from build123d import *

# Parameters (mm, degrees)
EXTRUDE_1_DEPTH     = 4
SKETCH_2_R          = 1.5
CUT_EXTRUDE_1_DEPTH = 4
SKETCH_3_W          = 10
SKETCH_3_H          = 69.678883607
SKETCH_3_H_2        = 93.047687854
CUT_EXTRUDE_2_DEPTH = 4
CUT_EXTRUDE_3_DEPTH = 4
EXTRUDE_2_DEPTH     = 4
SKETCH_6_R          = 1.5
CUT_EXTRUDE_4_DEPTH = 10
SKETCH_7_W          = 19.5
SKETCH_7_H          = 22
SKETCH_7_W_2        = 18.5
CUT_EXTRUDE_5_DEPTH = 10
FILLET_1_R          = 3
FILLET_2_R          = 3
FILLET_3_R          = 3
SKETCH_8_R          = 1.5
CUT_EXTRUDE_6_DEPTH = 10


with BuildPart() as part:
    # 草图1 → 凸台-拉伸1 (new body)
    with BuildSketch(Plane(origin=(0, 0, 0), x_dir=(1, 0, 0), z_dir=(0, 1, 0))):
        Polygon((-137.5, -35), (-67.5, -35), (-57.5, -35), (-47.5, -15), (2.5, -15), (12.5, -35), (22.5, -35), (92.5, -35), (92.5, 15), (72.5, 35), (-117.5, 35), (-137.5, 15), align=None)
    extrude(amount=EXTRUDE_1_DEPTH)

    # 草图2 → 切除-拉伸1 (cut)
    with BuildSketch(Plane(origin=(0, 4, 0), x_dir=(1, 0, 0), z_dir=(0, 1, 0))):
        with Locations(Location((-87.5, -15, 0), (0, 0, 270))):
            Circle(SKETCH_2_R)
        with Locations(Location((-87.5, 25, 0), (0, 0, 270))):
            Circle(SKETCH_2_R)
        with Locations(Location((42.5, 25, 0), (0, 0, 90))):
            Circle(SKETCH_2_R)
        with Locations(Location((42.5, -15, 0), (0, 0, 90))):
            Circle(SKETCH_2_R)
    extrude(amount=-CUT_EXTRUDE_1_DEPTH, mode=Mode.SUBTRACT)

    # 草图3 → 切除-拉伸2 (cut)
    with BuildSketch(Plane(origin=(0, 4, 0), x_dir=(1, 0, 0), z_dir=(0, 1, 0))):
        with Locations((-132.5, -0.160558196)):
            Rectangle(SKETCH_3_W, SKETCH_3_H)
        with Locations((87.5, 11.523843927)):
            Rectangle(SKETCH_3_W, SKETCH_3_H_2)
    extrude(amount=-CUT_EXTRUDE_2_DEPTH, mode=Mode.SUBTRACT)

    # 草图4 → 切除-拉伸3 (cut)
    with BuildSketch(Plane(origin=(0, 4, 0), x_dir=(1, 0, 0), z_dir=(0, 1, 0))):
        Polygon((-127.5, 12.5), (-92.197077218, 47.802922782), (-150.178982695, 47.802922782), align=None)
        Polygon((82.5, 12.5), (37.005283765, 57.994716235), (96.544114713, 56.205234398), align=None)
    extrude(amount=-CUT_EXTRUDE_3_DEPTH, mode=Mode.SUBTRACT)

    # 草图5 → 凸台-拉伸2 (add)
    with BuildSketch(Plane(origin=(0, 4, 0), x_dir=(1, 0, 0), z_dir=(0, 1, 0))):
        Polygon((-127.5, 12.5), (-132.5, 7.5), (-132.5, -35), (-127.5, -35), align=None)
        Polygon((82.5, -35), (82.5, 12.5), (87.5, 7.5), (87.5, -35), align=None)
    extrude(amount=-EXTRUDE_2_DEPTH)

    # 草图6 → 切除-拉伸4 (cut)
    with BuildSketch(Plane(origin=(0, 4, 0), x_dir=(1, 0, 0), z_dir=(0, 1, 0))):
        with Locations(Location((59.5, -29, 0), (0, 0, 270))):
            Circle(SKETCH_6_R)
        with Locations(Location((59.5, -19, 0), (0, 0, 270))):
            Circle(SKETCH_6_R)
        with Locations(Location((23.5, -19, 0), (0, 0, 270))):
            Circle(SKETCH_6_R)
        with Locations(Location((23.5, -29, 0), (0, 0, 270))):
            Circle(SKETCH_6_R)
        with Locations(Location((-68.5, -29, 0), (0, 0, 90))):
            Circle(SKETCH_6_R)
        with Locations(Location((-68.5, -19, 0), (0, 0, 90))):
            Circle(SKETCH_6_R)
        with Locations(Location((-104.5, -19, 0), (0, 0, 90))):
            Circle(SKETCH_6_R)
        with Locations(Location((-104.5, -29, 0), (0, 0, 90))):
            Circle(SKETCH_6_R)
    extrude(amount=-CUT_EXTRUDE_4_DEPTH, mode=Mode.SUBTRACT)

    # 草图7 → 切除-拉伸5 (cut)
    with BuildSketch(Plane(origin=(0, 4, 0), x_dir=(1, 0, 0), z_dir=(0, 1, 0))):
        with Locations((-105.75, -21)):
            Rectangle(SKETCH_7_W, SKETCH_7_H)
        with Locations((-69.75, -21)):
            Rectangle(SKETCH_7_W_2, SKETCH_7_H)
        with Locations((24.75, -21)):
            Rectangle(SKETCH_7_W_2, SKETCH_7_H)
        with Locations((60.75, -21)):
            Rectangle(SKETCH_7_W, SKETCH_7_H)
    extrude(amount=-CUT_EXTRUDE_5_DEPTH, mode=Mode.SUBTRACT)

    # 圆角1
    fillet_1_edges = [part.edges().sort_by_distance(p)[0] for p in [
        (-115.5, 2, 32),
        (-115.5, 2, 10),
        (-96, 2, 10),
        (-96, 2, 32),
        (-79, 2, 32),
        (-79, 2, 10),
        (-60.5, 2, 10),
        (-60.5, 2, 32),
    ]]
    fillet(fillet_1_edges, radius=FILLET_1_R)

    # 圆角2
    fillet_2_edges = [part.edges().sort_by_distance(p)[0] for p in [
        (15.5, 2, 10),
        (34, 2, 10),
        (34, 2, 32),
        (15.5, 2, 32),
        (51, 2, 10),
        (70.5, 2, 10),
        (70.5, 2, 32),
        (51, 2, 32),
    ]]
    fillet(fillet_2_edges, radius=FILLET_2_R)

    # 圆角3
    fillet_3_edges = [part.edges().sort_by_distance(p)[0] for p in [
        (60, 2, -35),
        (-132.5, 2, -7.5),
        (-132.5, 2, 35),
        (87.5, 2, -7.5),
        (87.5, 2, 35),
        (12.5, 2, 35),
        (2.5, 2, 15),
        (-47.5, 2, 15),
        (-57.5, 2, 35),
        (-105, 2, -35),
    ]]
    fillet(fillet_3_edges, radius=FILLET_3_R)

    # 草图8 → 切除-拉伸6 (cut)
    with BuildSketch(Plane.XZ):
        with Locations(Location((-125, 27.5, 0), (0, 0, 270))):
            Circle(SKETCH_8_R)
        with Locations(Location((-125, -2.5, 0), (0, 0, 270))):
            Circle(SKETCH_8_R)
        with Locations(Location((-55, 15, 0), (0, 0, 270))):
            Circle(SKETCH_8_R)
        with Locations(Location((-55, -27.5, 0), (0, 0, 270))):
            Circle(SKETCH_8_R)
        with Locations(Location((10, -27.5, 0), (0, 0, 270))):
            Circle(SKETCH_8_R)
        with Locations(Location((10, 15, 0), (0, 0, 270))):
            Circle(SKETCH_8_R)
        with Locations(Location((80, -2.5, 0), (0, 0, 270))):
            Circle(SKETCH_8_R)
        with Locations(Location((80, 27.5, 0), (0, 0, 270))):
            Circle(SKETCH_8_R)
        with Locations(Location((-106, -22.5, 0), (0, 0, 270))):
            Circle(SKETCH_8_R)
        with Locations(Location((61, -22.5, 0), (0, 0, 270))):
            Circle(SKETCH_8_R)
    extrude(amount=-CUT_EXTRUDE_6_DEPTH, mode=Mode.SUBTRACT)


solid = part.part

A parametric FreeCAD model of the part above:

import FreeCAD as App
import Part
import Sketcher
Q = App.Units.Quantity


def edges_at(feature, points):
    """Names of the edges that pass closest to the given points."""
    edges = feature.Shape.Edges
    near = lambda p: min(range(len(edges)), key=lambda i: edges[i].distToShape(Part.Vertex(*p))[0])
    return sorted({f"Edge{near(p) + 1}" for p in points})

doc = App.newDocument("Part")
body = doc.addObject("PartDesign::Body", "Body")

sketch1 = doc.addObject("Sketcher::SketchObject", "Sketch")
body.addObject(sketch1)
sketch1.AttachmentSupport = (doc.XZ_Plane, [""])
sketch1.MapMode = "FlatFace"
sketch1.addGeometry(Part.LineSegment(App.Vector(-138, 35, 0), App.Vector(-58, 35, 0)), False)
sketch1.addGeometry(Part.LineSegment(App.Vector(-58, 35, 0), App.Vector(-48, 15, 0)), False)
sketch1.addGeometry(Part.LineSegment(App.Vector(-48, 15, 0), App.Vector(2, 15, 0)), False)
sketch1.addGeometry(Part.LineSegment(App.Vector(2, 15, 0), App.Vector(12, 35, 0)), False)
sketch1.addGeometry(Part.LineSegment(App.Vector(12, 35, 0), App.Vector(92, 35, 0)), False)
sketch1.addGeometry(Part.LineSegment(App.Vector(92, 35, 0), App.Vector(92, -15, 0)), False)
sketch1.addGeometry(Part.LineSegment(App.Vector(92, -15, 0), App.Vector(72, -35, 0)), False)
sketch1.addGeometry(Part.LineSegment(App.Vector(72, -35, 0), App.Vector(-118, -35, 0)), False)
sketch1.addGeometry(Part.LineSegment(App.Vector(-118, -35, 0), App.Vector(-138, -15, 0)), False)
sketch1.addGeometry(Part.LineSegment(App.Vector(-138, -15, 0), App.Vector(-138, 35, 0)), False)
sketch1.addConstraint(Sketcher.Constraint("Coincident", 0, 2, 1, 1))
sketch1.addConstraint(Sketcher.Constraint("Coincident", 1, 2, 2, 1))
sketch1.addConstraint(Sketcher.Constraint("Coincident", 2, 2, 3, 1))
sketch1.addConstraint(Sketcher.Constraint("Coincident", 3, 2, 4, 1))
sketch1.addConstraint(Sketcher.Constraint("Coincident", 4, 2, 5, 1))
sketch1.addConstraint(Sketcher.Constraint("Coincident", 5, 2, 6, 1))
sketch1.addConstraint(Sketcher.Constraint("Coincident", 6, 2, 7, 1))
sketch1.addConstraint(Sketcher.Constraint("Coincident", 7, 2, 8, 1))
sketch1.addConstraint(Sketcher.Constraint("Coincident", 8, 2, 9, 1))
sketch1.addConstraint(Sketcher.Constraint("Coincident", 9, 2, 0, 1))
sketch1.addConstraint(Sketcher.Constraint("Horizontal", 0))
sketch1.addConstraint(Sketcher.Constraint("Horizontal", 2))
sketch1.addConstraint(Sketcher.Constraint("Horizontal", 4))
sketch1.addConstraint(Sketcher.Constraint("Vertical", 5))
sketch1.addConstraint(Sketcher.Constraint("Horizontal", 7))
sketch1.addConstraint(Sketcher.Constraint("Vertical", 9))
sketch1.addConstraint(Sketcher.Constraint("Perpendicular", 6, 8))
sketch1.addConstraint(Sketcher.Constraint("Horizontal", 0, 2, 3, 2))
sketch1.addConstraint(Sketcher.Constraint("Horizontal", 5, 2, 8, 2))
sketch1.addConstraint(Sketcher.Constraint("Equal", 0, 4))
sketch1.addConstraint(Sketcher.Constraint("Equal", 2, 5))
sketch1.addConstraint(Sketcher.Constraint("Equal", 1, 3))
sketch1.addConstraint(Sketcher.Constraint("Equal", 6, 8))
sketch1.addConstraint(Sketcher.Constraint("DistanceX", 0, 1, 0, 2, Q("80 mm")))
sketch1.addConstraint(Sketcher.Constraint("DistanceX", 2, 1, 2, 2, Q("50 mm")))
sketch1.addConstraint(Sketcher.Constraint("DistanceX", 7, 2, 7, 1, Q("190 mm")))
sketch1.addConstraint(Sketcher.Constraint("DistanceY", -1, 1, 0, 2, Q("35 mm")))
sketch1.addConstraint(Sketcher.Constraint("DistanceY", -1, 1, 1, 2, Q("15 mm")))
sketch1.addConstraint(Sketcher.Constraint("DistanceY", 6, 2, -1, 1, Q("35 mm")))
sketch1.addConstraint(Sketcher.Constraint("DistanceX", 0, 2, -1, 1, Q("57.5 mm")))
pad1 = doc.addObject("PartDesign::Pad", "Pad")
body.addObject(pad1)
pad1.Profile = sketch1
pad1.Length = 4
pad1.Reversed = True

sketch2 = doc.addObject("Sketcher::SketchObject", "Sketch001")
body.addObject(sketch2)
sketch2.AttachmentSupport = (doc.XZ_Plane, [""])
sketch2.MapMode = "FlatFace"
sketch2.AttachmentOffset = App.Placement(App.Vector(0, 0, -4), App.Rotation())
sketch2.addGeometry(Part.Circle(App.Vector(-87.5, 15, 0), App.Vector(0, 0, 1), 1.5), False)
sketch2.addGeometry(Part.Circle(App.Vector(-87.5, -25, 0), App.Vector(0, 0, 1), 1.5), False)
sketch2.addGeometry(Part.Circle(App.Vector(42.5, -25, 0), App.Vector(0, 0, 1), 1.5), False)
sketch2.addGeometry(Part.Circle(App.Vector(42.5, 15, 0), App.Vector(0, 0, 1), 1.5), False)
sketch2.addConstraint(Sketcher.Constraint("Equal", 0, 1))
sketch2.addConstraint(Sketcher.Constraint("Equal", 1, 2))
sketch2.addConstraint(Sketcher.Constraint("Equal", 2, 3))
sketch2.addConstraint(Sketcher.Constraint("Horizontal", 1, 3, 2, 3))
sketch2.addConstraint(Sketcher.Constraint("Horizontal", 0, 3, 3, 3))
sketch2.addConstraint(Sketcher.Constraint("Vertical", 0, 3, 1, 3))
sketch2.addConstraint(Sketcher.Constraint("Vertical", 2, 3, 3, 3))
sketch2.addConstraint(Sketcher.Constraint("Diameter", 0, Q("3 mm")))
sketch2.addConstraint(Sketcher.Constraint("DistanceY", -1, 1, 0, 3, Q("15 mm")))
sketch2.addConstraint(Sketcher.Constraint("DistanceY", 1, 3, -1, 1, Q("25 mm")))
sketch2.addConstraint(Sketcher.Constraint("DistanceX", 1, 3, 2, 3, Q("130 mm")))
sketch2.addConstraint(Sketcher.Constraint("DistanceX", 0, 3, -1, 1, Q("87.5 mm")))
pocket1 = doc.addObject("PartDesign::Pocket", "Pocket")
body.addObject(pocket1)
pocket1.Profile = sketch2
pocket1.Length = 4
pocket1.Reversed = True

sketch3 = doc.addObject("Sketcher::SketchObject", "Sketch002")
body.addObject(sketch3)
sketch3.AttachmentSupport = (doc.XZ_Plane, [""])
sketch3.MapMode = "FlatFace"
sketch3.AttachmentOffset = App.Placement(App.Vector(0, 0, -4), App.Rotation())
sketch3.addGeometry(Part.LineSegment(App.Vector(-138, -35, 0), App.Vector(-138, 35, 0)), False)
sketch3.addGeometry(Part.LineSegment(App.Vector(-138, 35, 0), App.Vector(-128, 35, 0)), False)
sketch3.addGeometry(Part.LineSegment(App.Vector(-128, 35, 0), App.Vector(-128, -35, 0)), False)
sketch3.addGeometry(Part.LineSegment(App.Vector(-128, -35, 0), App.Vector(-138, -35, 0)), False)
sketch3.addGeometry(Part.LineSegment(App.Vector(82, -58, 0), App.Vector(82, 35, 0)), False)
sketch3.addGeometry(Part.LineSegment(App.Vector(82, 35, 0), App.Vector(92, 35, 0)), False)
sketch3.addGeometry(Part.LineSegment(App.Vector(92, 35, 0), App.Vector(92, -58, 0)), False)
sketch3.addGeometry(Part.LineSegment(App.Vector(92, -58, 0), App.Vector(82, -58, 0)), False)
sketch3.addConstraint(Sketcher.Constraint("Coincident", 0, 2, 1, 1))
sketch3.addConstraint(Sketcher.Constraint("Coincident", 1, 2, 2, 1))
sketch3.addConstraint(Sketcher.Constraint("Coincident", 2, 2, 3, 1))
sketch3.addConstraint(Sketcher.Constraint("Coincident", 3, 2, 0, 1))
sketch3.addConstraint(Sketcher.Constraint("Coincident", 4, 2, 5, 1))
sketch3.addConstraint(Sketcher.Constraint("Coincident", 5, 2, 6, 1))
sketch3.addConstraint(Sketcher.Constraint("Coincident", 6, 2, 7, 1))
sketch3.addConstraint(Sketcher.Constraint("Coincident", 7, 2, 4, 1))
sketch3.addConstraint(Sketcher.Constraint("Vertical", 0))
sketch3.addConstraint(Sketcher.Constraint("Horizontal", 1))
sketch3.addConstraint(Sketcher.Constraint("Vertical", 2))
sketch3.addConstraint(Sketcher.Constraint("Horizontal", 3))
sketch3.addConstraint(Sketcher.Constraint("Vertical", 4))
sketch3.addConstraint(Sketcher.Constraint("Horizontal", 5))
sketch3.addConstraint(Sketcher.Constraint("Vertical", 6))
sketch3.addConstraint(Sketcher.Constraint("Horizontal", 7))
sketch3.addConstraint(Sketcher.Constraint("Horizontal", 1, 2, 4, 2))
sketch3.addConstraint(Sketcher.Constraint("Equal", 3, 5))
sketch3.addConstraint(Sketcher.Constraint("DistanceX", 1, 1, 1, 2, Q("10 mm")))
sketch3.addConstraint(Sketcher.Constraint("DistanceY", -1, 1, 0, 2, Q("35 mm")))
sketch3.addConstraint(Sketcher.Constraint("DistanceX", 1, 2, 4, 2, Q("210 mm")))
sketch3.addConstraint(Sketcher.Constraint("DistanceX", 0, 2, -1, 1, Q("137.5 mm")))
sketch3.addConstraint(Sketcher.Constraint("DistanceY", 0, 1, 0, 2, Q("69.678884 mm")))
sketch3.addConstraint(Sketcher.Constraint("DistanceY", 4, 1, 4, 2, Q("93.047688 mm")))
pocket2 = doc.addObject("PartDesign::Pocket", "Pocket001")
body.addObject(pocket2)
pocket2.Profile = sketch3
pocket2.Length = 4
pocket2.Reversed = True

sketch4 = doc.addObject("Sketcher::SketchObject", "Sketch003")
body.addObject(sketch4)
sketch4.AttachmentSupport = (doc.XZ_Plane, [""])
sketch4.MapMode = "FlatFace"
sketch4.AttachmentOffset = App.Placement(App.Vector(0, 0, -4), App.Rotation())
sketch4.addGeometry(Part.LineSegment(App.Vector(-128, -12, 0), App.Vector(-92, -48, 0)), False)
sketch4.addGeometry(Part.LineSegment(App.Vector(-92, -48, 0), App.Vector(-150, -48, 0)), False)
sketch4.addGeometry(Part.LineSegment(App.Vector(-150, -48, 0), App.Vector(-128, -12, 0)), False)
sketch4.addGeometry(Part.LineSegment(App.Vector(37, -58, 0), App.Vector(82, -12, 0)), False)
sketch4.addGeometry(Part.LineSegment(App.Vector(82, -12, 0), App.Vector(97, -56, 0)), False)
sketch4.addGeometry(Part.LineSegment(App.Vector(97, -56, 0), App.Vector(37, -58, 0)), False)
sketch4.addConstraint(Sketcher.Constraint("Coincident", 0, 2, 1, 1))
sketch4.addConstraint(Sketcher.Constraint("Coincident", 1, 2, 2, 1))
sketch4.addConstraint(Sketcher.Constraint("Coincident", 2, 2, 0, 1))
sketch4.addConstraint(Sketcher.Constraint("Coincident", 3, 2, 4, 1))
sketch4.addConstraint(Sketcher.Constraint("Coincident", 4, 2, 5, 1))
sketch4.addConstraint(Sketcher.Constraint("Coincident", 5, 2, 3, 1))
sketch4.addConstraint(Sketcher.Constraint("Horizontal", 1))
sketch4.addConstraint(Sketcher.Constraint("Perpendicular", 0, 3))
sketch4.addConstraint(Sketcher.Constraint("Horizontal", 2, 2, 3, 2))
sketch4.addConstraint(Sketcher.Constraint("Angle", 0, Q("-45 deg")))
sketch4.addConstraint(Sketcher.Constraint("DistanceX", 2, 2, 3, 2, Q("210 mm")))
sketch4.addConstraint(Sketcher.Constraint("DistanceX", 2, 2, -1, 1, Q("127.5 mm")))
sketch4.addConstraint(Sketcher.Constraint("DistanceY", 2, 2, -1, 1, Q("12.5 mm")))
sketch4.addConstraint(Sketcher.Constraint("Distance", 4, Q("45.90626 mm")))
sketch4.addConstraint(Sketcher.Constraint("DistanceX", 1, 2, 1, 1, Q("57.981905 mm")))
sketch4.addConstraint(Sketcher.Constraint("DistanceX", 0, 2, 4, 2, Q("188.741192 mm")))
sketch4.addConstraint(Sketcher.Constraint("DistanceY", 4, 2, 0, 2, Q("8.402312 mm")))
sketch4.addConstraint(Sketcher.Constraint("DistanceX", 5, 2, 4, 2, Q("59.538831 mm")))
pocket3 = doc.addObject("PartDesign::Pocket", "Pocket002")
body.addObject(pocket3)
pocket3.Profile = sketch4
pocket3.Length = 4
pocket3.Reversed = True

sketch5 = doc.addObject("Sketcher::SketchObject", "Sketch004")
body.addObject(sketch5)
sketch5.AttachmentSupport = (doc.XZ_Plane, [""])
sketch5.MapMode = "FlatFace"
sketch5.AttachmentOffset = App.Placement(App.Vector(0, 0, -4), App.Rotation())
sketch5.addGeometry(Part.LineSegment(App.Vector(-128, -12, 0), App.Vector(-132, -8, 0)), False)
sketch5.addGeometry(Part.LineSegment(App.Vector(-132, -8, 0), App.Vector(-132, 35, 0)), False)
sketch5.addGeometry(Part.LineSegment(App.Vector(-132, 35, 0), App.Vector(-128, 35, 0)), False)
sketch5.addGeometry(Part.LineSegment(App.Vector(-128, 35, 0), App.Vector(-128, -12, 0)), False)
sketch5.addGeometry(Part.LineSegment(App.Vector(82, -12, 0), App.Vector(82, 35, 0)), False)
sketch5.addGeometry(Part.LineSegment(App.Vector(82, 35, 0), App.Vector(88, 35, 0)), False)
sketch5.addGeometry(Part.LineSegment(App.Vector(88, 35, 0), App.Vector(88, -8, 0)), False)
sketch5.addGeometry(Part.LineSegment(App.Vector(88, -8, 0), App.Vector(82, -12, 0)), False)
sketch5.addConstraint(Sketcher.Constraint("Coincident", 0, 2, 1, 1))
sketch5.addConstraint(Sketcher.Constraint("Coincident", 1, 2, 2, 1))
sketch5.addConstraint(Sketcher.Constraint("Coincident", 2, 2, 3, 1))
sketch5.addConstraint(Sketcher.Constraint("Coincident", 3, 2, 0, 1))
sketch5.addConstraint(Sketcher.Constraint("Coincident", 4, 2, 5, 1))
sketch5.addConstraint(Sketcher.Constraint("Coincident", 5, 2, 6, 1))
sketch5.addConstraint(Sketcher.Constraint("Coincident", 6, 2, 7, 1))
sketch5.addConstraint(Sketcher.Constraint("Coincident", 7, 2, 4, 1))
sketch5.addConstraint(Sketcher.Constraint("Vertical", 1))
sketch5.addConstraint(Sketcher.Constraint("Horizontal", 2))
sketch5.addConstraint(Sketcher.Constraint("Vertical", 3))
sketch5.addConstraint(Sketcher.Constraint("Vertical", 4))
sketch5.addConstraint(Sketcher.Constraint("Horizontal", 5))
sketch5.addConstraint(Sketcher.Constraint("Vertical", 6))
sketch5.addConstraint(Sketcher.Constraint("Perpendicular", 0, 7))
sketch5.addConstraint(Sketcher.Constraint("Horizontal", 2, 2, 4, 2))
sketch5.addConstraint(Sketcher.Constraint("Horizontal", 0, 2, 6, 2))
sketch5.addConstraint(Sketcher.Constraint("Horizontal", 3, 2, 7, 2))
sketch5.addConstraint(Sketcher.Constraint("Equal", 2, 5))
sketch5.addConstraint(Sketcher.Constraint("DistanceX", 2, 1, 2, 2, Q("5 mm")))
sketch5.addConstraint(Sketcher.Constraint("DistanceY", 1, 1, 1, 2, Q("42.5 mm")))
sketch5.addConstraint(Sketcher.Constraint("DistanceY", -1, 1, 1, 2, Q("35 mm")))
sketch5.addConstraint(Sketcher.Constraint("DistanceX", 2, 2, 4, 2, Q("210 mm")))
sketch5.addConstraint(Sketcher.Constraint("DistanceX", 0, 2, -1, 1, Q("132.5 mm")))
pad2 = doc.addObject("PartDesign::Pad", "Pad001")
body.addObject(pad2)
pad2.Profile = sketch5
pad2.Length = 4

sketch6 = doc.addObject("Sketcher::SketchObject", "Sketch005")
body.addObject(sketch6)
sketch6.AttachmentSupport = (doc.XZ_Plane, [""])
sketch6.MapMode = "FlatFace"
sketch6.AttachmentOffset = App.Placement(App.Vector(0, 0, -4), App.Rotation())
sketch6.addGeometry(Part.Circle(App.Vector(59.5, 29, 0), App.Vector(0, 0, 1), 1.5), False)
sketch6.addGeometry(Part.Circle(App.Vector(59.5, 19, 0), App.Vector(0, 0, 1), 1.5), False)
sketch6.addGeometry(Part.Circle(App.Vector(23.5, 19, 0), App.Vector(0, 0, 1), 1.5), False)
sketch6.addGeometry(Part.Circle(App.Vector(23.5, 29, 0), App.Vector(0, 0, 1), 1.5), False)
sketch6.addGeometry(Part.Circle(App.Vector(-68.5, 29, 0), App.Vector(0, 0, 1), 1.5), False)
sketch6.addGeometry(Part.Circle(App.Vector(-68.5, 19, 0), App.Vector(0, 0, 1), 1.5), False)
sketch6.addGeometry(Part.Circle(App.Vector(-104.5, 19, 0), App.Vector(0, 0, 1), 1.5), False)
sketch6.addGeometry(Part.Circle(App.Vector(-104.5, 29, 0), App.Vector(0, 0, 1), 1.5), False)
sketch6.addConstraint(Sketcher.Constraint("Equal", 0, 1))
sketch6.addConstraint(Sketcher.Constraint("Equal", 1, 2))
sketch6.addConstraint(Sketcher.Constraint("Equal", 2, 3))
sketch6.addConstraint(Sketcher.Constraint("Equal", 3, 4))
sketch6.addConstraint(Sketcher.Constraint("Equal", 4, 5))
sketch6.addConstraint(Sketcher.Constraint("Equal", 5, 6))
sketch6.addConstraint(Sketcher.Constraint("Equal", 6, 7))
sketch6.addConstraint(Sketcher.Constraint("Horizontal", 1, 3, 2, 3))
sketch6.addConstraint(Sketcher.Constraint("Horizontal", 0, 3, 3, 3))
sketch6.addConstraint(Sketcher.Constraint("Horizontal", 3, 3, 4, 3))
sketch6.addConstraint(Sketcher.Constraint("Horizontal", 2, 3, 5, 3))
sketch6.addConstraint(Sketcher.Constraint("Horizontal", 5, 3, 6, 3))
sketch6.addConstraint(Sketcher.Constraint("Horizontal", 4, 3, 7, 3))
sketch6.addConstraint(Sketcher.Constraint("Vertical", 0, 3, 1, 3))
sketch6.addConstraint(Sketcher.Constraint("Vertical", 2, 3, 3, 3))
sketch6.addConstraint(Sketcher.Constraint("Vertical", 4, 3, 5, 3))
sketch6.addConstraint(Sketcher.Constraint("Vertical", 6, 3, 7, 3))
sketch6.addConstraint(Sketcher.Constraint("Diameter", 0, Q("3 mm")))
sketch6.addConstraint(Sketcher.Constraint("DistanceY", -1, 1, 0, 3, Q("29 mm")))
sketch6.addConstraint(Sketcher.Constraint("DistanceY", -1, 1, 1, 3, Q("19 mm")))
sketch6.addConstraint(Sketcher.Constraint("DistanceX", 2, 3, 1, 3, Q("36 mm")))
sketch6.addConstraint(Sketcher.Constraint("DistanceX", 4, 3, 3, 3, Q("92 mm")))
sketch6.addConstraint(Sketcher.Constraint("DistanceX", 6, 3, 5, 3, Q("36 mm")))
sketch6.addConstraint(Sketcher.Constraint("DistanceX", -1, 1, 0, 3, Q("59.5 mm")))
pocket4 = doc.addObject("PartDesign::Pocket", "Pocket003")
body.addObject(pocket4)
pocket4.Profile = sketch6
pocket4.Length = 10
pocket4.Reversed = True

sketch7 = doc.addObject("Sketcher::SketchObject", "Sketch006")
body.addObject(sketch7)
sketch7.AttachmentSupport = (doc.XZ_Plane, [""])
sketch7.MapMode = "FlatFace"
sketch7.AttachmentOffset = App.Placement(App.Vector(0, 0, -4), App.Rotation())
sketch7.addGeometry(Part.LineSegment(App.Vector(-116, 10, 0), App.Vector(-116, 32, 0)), False)
sketch7.addGeometry(Part.LineSegment(App.Vector(-116, 32, 0), App.Vector(-96, 32, 0)), False)
sketch7.addGeometry(Part.LineSegment(App.Vector(-96, 32, 0), App.Vector(-96, 10, 0)), False)
sketch7.addGeometry(Part.LineSegment(App.Vector(-96, 10, 0), App.Vector(-116, 10, 0)), False)
sketch7.addGeometry(Part.LineSegment(App.Vector(-79, 10, 0), App.Vector(-79, 32, 0)), False)
sketch7.addGeometry(Part.LineSegment(App.Vector(-79, 32, 0), App.Vector(-60, 32, 0)), False)
sketch7.addGeometry(Part.LineSegment(App.Vector(-60, 32, 0), App.Vector(-60, 10, 0)), False)
sketch7.addGeometry(Part.LineSegment(App.Vector(-60, 10, 0), App.Vector(-79, 10, 0)), False)
sketch7.addGeometry(Part.LineSegment(App.Vector(16, 10, 0), App.Vector(16, 32, 0)), False)
sketch7.addGeometry(Part.LineSegment(App.Vector(16, 32, 0), App.Vector(34, 32, 0)), False)
sketch7.addGeometry(Part.LineSegment(App.Vector(34, 32, 0), App.Vector(34, 10, 0)), False)
sketch7.addGeometry(Part.LineSegment(App.Vector(34, 10, 0), App.Vector(16, 10, 0)), False)
sketch7.addGeometry(Part.LineSegment(App.Vector(51, 10, 0), App.Vector(51, 32, 0)), False)
sketch7.addGeometry(Part.LineSegment(App.Vector(51, 32, 0), App.Vector(70, 32, 0)), False)
sketch7.addGeometry(Part.LineSegment(App.Vector(70, 32, 0), App.Vector(70, 10, 0)), False)
sketch7.addGeometry(Part.LineSegment(App.Vector(70, 10, 0), App.Vector(51, 10, 0)), False)
sketch7.addConstraint(Sketcher.Constraint("Coincident", 0, 2, 1, 1))
sketch7.addConstraint(Sketcher.Constraint("Coincident", 1, 2, 2, 1))
sketch7.addConstraint(Sketcher.Constraint("Coincident", 2, 2, 3, 1))
sketch7.addConstraint(Sketcher.Constraint("Coincident", 3, 2, 0, 1))
sketch7.addConstraint(Sketcher.Constraint("Coincident", 4, 2, 5, 1))
sketch7.addConstraint(Sketcher.Constraint("Coincident", 5, 2, 6, 1))
sketch7.addConstraint(Sketcher.Constraint("Coincident", 6, 2, 7, 1))
sketch7.addConstraint(Sketcher.Constraint("Coincident", 7, 2, 4, 1))
sketch7.addConstraint(Sketcher.Constraint("Coincident", 8, 2, 9, 1))
sketch7.addConstraint(Sketcher.Constraint("Coincident", 9, 2, 10, 1))
sketch7.addConstraint(Sketcher.Constraint("Coincident", 10, 2, 11, 1))
sketch7.addConstraint(Sketcher.Constraint("Coincident", 11, 2, 8, 1))
sketch7.addConstraint(Sketcher.Constraint("Coincident", 12, 2, 13, 1))
sketch7.addConstraint(Sketcher.Constraint("Coincident", 13, 2, 14, 1))
sketch7.addConstraint(Sketcher.Constraint("Coincident", 14, 2, 15, 1))
sketch7.addConstraint(Sketcher.Constraint("Coincident", 15, 2, 12, 1))
sketch7.addConstraint(Sketcher.Constraint("Vertical", 0))
sketch7.addConstraint(Sketcher.Constraint("Horizontal", 1))
sketch7.addConstraint(Sketcher.Constraint("Vertical", 2))
sketch7.addConstraint(Sketcher.Constraint("Horizontal", 3))
sketch7.addConstraint(Sketcher.Constraint("Vertical", 4))
sketch7.addConstraint(Sketcher.Constraint("Horizontal", 5))
sketch7.addConstraint(Sketcher.Constraint("Vertical", 6))
sketch7.addConstraint(Sketcher.Constraint("Horizontal", 7))
sketch7.addConstraint(Sketcher.Constraint("Vertical", 8))
sketch7.addConstraint(Sketcher.Constraint("Horizontal", 9))
sketch7.addConstraint(Sketcher.Constraint("Vertical", 10))
sketch7.addConstraint(Sketcher.Constraint("Horizontal", 11))
sketch7.addConstraint(Sketcher.Constraint("Vertical", 12))
sketch7.addConstraint(Sketcher.Constraint("Horizontal", 13))
sketch7.addConstraint(Sketcher.Constraint("Vertical", 14))
sketch7.addConstraint(Sketcher.Constraint("Horizontal", 15))
sketch7.addConstraint(Sketcher.Constraint("Horizontal", 1, 2, 4, 2))
sketch7.addConstraint(Sketcher.Constraint("Horizontal", 3, 2, 6, 2))
sketch7.addConstraint(Sketcher.Constraint("Horizontal", 5, 2, 8, 2))
sketch7.addConstraint(Sketcher.Constraint("Horizontal", 7, 2, 10, 2))
sketch7.addConstraint(Sketcher.Constraint("Horizontal", 9, 2, 12, 2))
sketch7.addConstraint(Sketcher.Constraint("Horizontal", 11, 2, 14, 2))
sketch7.addConstraint(Sketcher.Constraint("Equal", 7, 9))
sketch7.addConstraint(Sketcher.Constraint("Equal", 3, 13))
sketch7.addConstraint(Sketcher.Constraint("DistanceY", 0, 1, 0, 2, Q("22 mm")))
sketch7.addConstraint(Sketcher.Constraint("DistanceX", 1, 1, 1, 2, Q("19.5 mm")))
sketch7.addConstraint(Sketcher.Constraint("DistanceX", 5, 1, 5, 2, Q("18.5 mm")))
sketch7.addConstraint(Sketcher.Constraint("DistanceY", -1, 1, 0, 2, Q("32 mm")))
sketch7.addConstraint(Sketcher.Constraint("DistanceX", 1, 2, -1, 1, Q("96 mm")))
sketch7.addConstraint(Sketcher.Constraint("DistanceX", 4, 2, -1, 1, Q("79 mm")))
sketch7.addConstraint(Sketcher.Constraint("DistanceX", -1, 1, 9, 2, Q("34 mm")))
sketch7.addConstraint(Sketcher.Constraint("DistanceX", -1, 1, 12, 2, Q("51 mm")))
pocket5 = doc.addObject("PartDesign::Pocket", "Pocket004")
body.addObject(pocket5)
pocket5.Profile = sketch7
pocket5.Length = 10
pocket5.Reversed = True
doc.recompute()

fillet = doc.addObject("PartDesign::Fillet", "Fillet")
body.addObject(fillet)
fillet.Base = (pocket5, edges_at(pocket5, [
    (-115.5, 2, 32),
    (-115.5, 2, 10),
    (-96, 2, 10),
    (-96, 2, 32),
    (-79, 2, 32),
    (-79, 2, 10),
    (-60.5, 2, 10),
    (-60.5, 2, 32),
]))
fillet.Radius = 3
doc.recompute()

fillet2 = doc.addObject("PartDesign::Fillet", "Fillet001")
body.addObject(fillet2)
fillet2.Base = (fillet, edges_at(fillet, [
    (15.5, 2, 10),
    (34, 2, 10),
    (34, 2, 32),
    (15.5, 2, 32),
    (51, 2, 10),
    (70.5, 2, 10),
    (70.5, 2, 32),
    (51, 2, 32),
]))
fillet2.Radius = 3
doc.recompute()

fillet3 = doc.addObject("PartDesign::Fillet", "Fillet002")
body.addObject(fillet3)
fillet3.Base = (fillet2, edges_at(fillet2, [
    (60, 2, -35),
    (-132.5, 2, -7.5),
    (-132.5, 2, 35),
    (87.5, 2, -7.5),
    (87.5, 2, 35),
    (12.5, 2, 35),
    (2.5, 2, 15),
    (-47.5, 2, 15),
    (-57.5, 2, 35),
    (-105, 2, -35),
]))
fillet3.Radius = 3

sketch8 = doc.addObject("Sketcher::SketchObject", "Sketch007")
body.addObject(sketch8)
sketch8.AttachmentSupport = (doc.XZ_Plane, [""])
sketch8.MapMode = "FlatFace"
sketch8.addGeometry(Part.Circle(App.Vector(-125, 27.5, 0), App.Vector(0, 0, 1), 1.5), False)
sketch8.addGeometry(Part.Circle(App.Vector(-125, -2.5, 0), App.Vector(0, 0, 1), 1.5), False)
sketch8.addGeometry(Part.Circle(App.Vector(-55, 15, 0), App.Vector(0, 0, 1), 1.5), False)
sketch8.addGeometry(Part.Circle(App.Vector(-55, -27.5, 0), App.Vector(0, 0, 1), 1.5), False)
sketch8.addGeometry(Part.Circle(App.Vector(10, -27.5, 0), App.Vector(0, 0, 1), 1.5), False)
sketch8.addGeometry(Part.Circle(App.Vector(10, 15, 0), App.Vector(0, 0, 1), 1.5), False)
sketch8.addGeometry(Part.Circle(App.Vector(80, -2.5, 0), App.Vector(0, 0, 1), 1.5), False)
sketch8.addGeometry(Part.Circle(App.Vector(80, 27.5, 0), App.Vector(0, 0, 1), 1.5), False)
sketch8.addGeometry(Part.Circle(App.Vector(-106, -22.5, 0), App.Vector(0, 0, 1), 1.5), False)
sketch8.addGeometry(Part.Circle(App.Vector(61, -22.5, 0), App.Vector(0, 0, 1), 1.5), False)
sketch8.addConstraint(Sketcher.Constraint("Equal", 0, 1))
sketch8.addConstraint(Sketcher.Constraint("Equal", 1, 2))
sketch8.addConstraint(Sketcher.Constraint("Equal", 2, 3))
sketch8.addConstraint(Sketcher.Constraint("Equal", 3, 4))
sketch8.addConstraint(Sketcher.Constraint("Equal", 4, 5))
sketch8.addConstraint(Sketcher.Constraint("Equal", 5, 6))
sketch8.addConstraint(Sketcher.Constraint("Equal", 6, 7))
sketch8.addConstraint(Sketcher.Constraint("Equal", 7, 8))
sketch8.addConstraint(Sketcher.Constraint("Equal", 8, 9))
sketch8.addConstraint(Sketcher.Constraint("Horizontal", 3, 3, 4, 3))
sketch8.addConstraint(Sketcher.Constraint("Horizontal", 2, 3, 5, 3))
sketch8.addConstraint(Sketcher.Constraint("Horizontal", 1, 3, 6, 3))
sketch8.addConstraint(Sketcher.Constraint("Horizontal", 0, 3, 7, 3))
sketch8.addConstraint(Sketcher.Constraint("Horizontal", 8, 3, 9, 3))
sketch8.addConstraint(Sketcher.Constraint("Vertical", 0, 3, 1, 3))
sketch8.addConstraint(Sketcher.Constraint("Vertical", 2, 3, 3, 3))
sketch8.addConstraint(Sketcher.Constraint("Vertical", 4, 3, 5, 3))
sketch8.addConstraint(Sketcher.Constraint("Vertical", 6, 3, 7, 3))
sketch8.addConstraint(Sketcher.Constraint("Diameter", 0, Q("3 mm")))
sketch8.addConstraint(Sketcher.Constraint("DistanceX", 0, 3, -1, 1, Q("125 mm")))
sketch8.addConstraint(Sketcher.Constraint("DistanceX", 2, 3, -1, 1, Q("55 mm")))
sketch8.addConstraint(Sketcher.Constraint("DistanceY", -1, 1, 2, 3, Q("15 mm")))
sketch8.addConstraint(Sketcher.Constraint("DistanceX", -1, 1, 4, 3, Q("10 mm")))
sketch8.addConstraint(Sketcher.Constraint("DistanceX", -1, 1, 6, 3, Q("80 mm")))
sketch8.addConstraint(Sketcher.Constraint("DistanceX", 8, 3, -1, 1, Q("106 mm")))
sketch8.addConstraint(Sketcher.Constraint("DistanceX", -1, 1, 9, 3, Q("61 mm")))
sketch8.addConstraint(Sketcher.Constraint("DistanceY", 1, 3, 0, 3, Q("30 mm")))
sketch8.addConstraint(Sketcher.Constraint("DistanceY", 3, 3, 1, 3, Q("25 mm")))
sketch8.addConstraint(Sketcher.Constraint("DistanceY", 8, 3, 1, 3, Q("20 mm")))
sketch8.addConstraint(Sketcher.Constraint("DistanceY", -1, 1, 0, 3, Q("27.5 mm")))
pocket6 = doc.addObject("PartDesign::Pocket", "Pocket005")
body.addObject(pocket6)
pocket6.Profile = sketch8
pocket6.Length = 10

doc.recompute()
